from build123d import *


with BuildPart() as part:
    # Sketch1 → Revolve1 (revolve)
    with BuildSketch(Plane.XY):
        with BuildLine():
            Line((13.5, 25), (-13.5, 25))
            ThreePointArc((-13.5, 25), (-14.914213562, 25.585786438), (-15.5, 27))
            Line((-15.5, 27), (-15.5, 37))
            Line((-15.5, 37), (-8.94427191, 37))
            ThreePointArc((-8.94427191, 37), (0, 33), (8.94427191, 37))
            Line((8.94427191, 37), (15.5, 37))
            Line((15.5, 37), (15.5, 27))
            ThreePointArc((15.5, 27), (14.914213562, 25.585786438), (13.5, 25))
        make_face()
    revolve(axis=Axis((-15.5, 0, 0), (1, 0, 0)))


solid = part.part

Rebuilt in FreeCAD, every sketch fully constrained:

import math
import FreeCAD as App
import Part
import Sketcher

V = App.Vector

doc = App.newDocument("Part")
params = doc.addObject("Spreadsheet::Sheet", "Params")
for row, (alias, value) in enumerate([
    ("sketch1_radius", "2 mm"),
    ("sketch1_radius2", "12 mm"),
    ("sketch1_width", "27 mm"),
    ("sketch1_height", "10 mm"),
    ("revolution_angle", "360 deg"),
], start=1):
    params.set(f"A{row}", alias)
    params.set(f"B{row}", "=" + value)
    params.setAlias(f"B{row}", alias)

body = doc.addObject("PartDesign::Body", "Body")

# Sketch on XY plane
sketch1 = body.newObject("Sketcher::SketchObject", "Sketch")
sketch1.AttachmentSupport = (doc.getObject("XY_Plane"), [""])
sketch1.MapMode = "FlatFace"
sketch1.addGeometry([
    Part.LineSegment(V(-13.5, 25, 0), V(13.5, 25, 0)),  # 0
    Part.ArcOfCircle(Part.Circle(V(13.5, 27, 0), V(0, 0, 1), 2), math.radians(-90), math.radians(0)),  # 1
    Part.LineSegment(V(15.5, 27, 0), V(15.5, 37, 0)),  # 2
    Part.LineSegment(V(15.5, 37, 0), V(8.9, 37, 0)),  # 3
    Part.ArcOfCircle(Part.Circle(V(0, 45, 0), V(0, 0, 1), 12), math.radians(-138), math.radians(-42)),  # 4
    Part.LineSegment(V(-8.9, 37, 0), V(-15.5, 37, 0)),  # 5
    Part.LineSegment(V(-15.5, 37, 0), V(-15.5, 27, 0)),  # 6
    Part.ArcOfCircle(Part.Circle(V(-13.5, 27, 0), V(0, 0, 1), 2), math.radians(-180), math.radians(-90)),  # 7
], False)
sketch1.addConstraint([
    Sketcher.Constraint("Tangent", 0, 2, 1, 1),
    Sketcher.Constraint("Tangent", 1, 2, 2, 1),
    Sketcher.Constraint("Coincident", 2, 2, 3, 1),
    Sketcher.Constraint("Coincident", 3, 2, 4, 2),
    Sketcher.Constraint("Coincident", 4, 1, 5, 1),
    Sketcher.Constraint("Coincident", 5, 2, 6, 1),
    Sketcher.Constraint("Tangent", 6, 2, 7, 1),
    Sketcher.Constraint("Tangent", 7, 2, 0, 1),
    Sketcher.Constraint("Horizontal", 0),
    Sketcher.Constraint("Vertical", 2),
    Sketcher.Constraint("Horizontal", 3),
    Sketcher.Constraint("Horizontal", 5),
    Sketcher.Constraint("Vertical", 6),
    Sketcher.Constraint("Equal", 1, 7),
    Sketcher.Constraint("Symmetric", 3, 2, 4, 1, -2),
    Sketcher.Constraint("Equal", 3, 5),
    Sketcher.Constraint("Radius", 1, 2.0),
    Sketcher.Constraint("Radius", 4, 12.0),
    Sketcher.Constraint("DistanceX", 0, 1, 0, 2, 27.0),
    Sketcher.Constraint("DistanceY", 2, 1, 2, 2, 10.0),
    Sketcher.Constraint("DistanceY", -1, 1, 1, 3, 27.0),
    Sketcher.Constraint("DistanceY", -1, 1, 4, 3, 45.0),
])
sketch1.setExpression("Constraints[16]", "Params.sketch1_radius")
sketch1.setExpression("Constraints[17]", "Params.sketch1_radius2")
sketch1.setExpression("Constraints[18]", "Params.sketch1_width")
sketch1.setExpression("Constraints[19]", "Params.sketch1_height")
revolution = body.newObject("PartDesign::Revolution", "Revolution")
revolution.Profile = sketch1
revolution.ReferenceAxis = (sketch1, ["H_Axis"])
revolution.setExpression("Angle", "Params.revolution_angle")

doc.recompute()
